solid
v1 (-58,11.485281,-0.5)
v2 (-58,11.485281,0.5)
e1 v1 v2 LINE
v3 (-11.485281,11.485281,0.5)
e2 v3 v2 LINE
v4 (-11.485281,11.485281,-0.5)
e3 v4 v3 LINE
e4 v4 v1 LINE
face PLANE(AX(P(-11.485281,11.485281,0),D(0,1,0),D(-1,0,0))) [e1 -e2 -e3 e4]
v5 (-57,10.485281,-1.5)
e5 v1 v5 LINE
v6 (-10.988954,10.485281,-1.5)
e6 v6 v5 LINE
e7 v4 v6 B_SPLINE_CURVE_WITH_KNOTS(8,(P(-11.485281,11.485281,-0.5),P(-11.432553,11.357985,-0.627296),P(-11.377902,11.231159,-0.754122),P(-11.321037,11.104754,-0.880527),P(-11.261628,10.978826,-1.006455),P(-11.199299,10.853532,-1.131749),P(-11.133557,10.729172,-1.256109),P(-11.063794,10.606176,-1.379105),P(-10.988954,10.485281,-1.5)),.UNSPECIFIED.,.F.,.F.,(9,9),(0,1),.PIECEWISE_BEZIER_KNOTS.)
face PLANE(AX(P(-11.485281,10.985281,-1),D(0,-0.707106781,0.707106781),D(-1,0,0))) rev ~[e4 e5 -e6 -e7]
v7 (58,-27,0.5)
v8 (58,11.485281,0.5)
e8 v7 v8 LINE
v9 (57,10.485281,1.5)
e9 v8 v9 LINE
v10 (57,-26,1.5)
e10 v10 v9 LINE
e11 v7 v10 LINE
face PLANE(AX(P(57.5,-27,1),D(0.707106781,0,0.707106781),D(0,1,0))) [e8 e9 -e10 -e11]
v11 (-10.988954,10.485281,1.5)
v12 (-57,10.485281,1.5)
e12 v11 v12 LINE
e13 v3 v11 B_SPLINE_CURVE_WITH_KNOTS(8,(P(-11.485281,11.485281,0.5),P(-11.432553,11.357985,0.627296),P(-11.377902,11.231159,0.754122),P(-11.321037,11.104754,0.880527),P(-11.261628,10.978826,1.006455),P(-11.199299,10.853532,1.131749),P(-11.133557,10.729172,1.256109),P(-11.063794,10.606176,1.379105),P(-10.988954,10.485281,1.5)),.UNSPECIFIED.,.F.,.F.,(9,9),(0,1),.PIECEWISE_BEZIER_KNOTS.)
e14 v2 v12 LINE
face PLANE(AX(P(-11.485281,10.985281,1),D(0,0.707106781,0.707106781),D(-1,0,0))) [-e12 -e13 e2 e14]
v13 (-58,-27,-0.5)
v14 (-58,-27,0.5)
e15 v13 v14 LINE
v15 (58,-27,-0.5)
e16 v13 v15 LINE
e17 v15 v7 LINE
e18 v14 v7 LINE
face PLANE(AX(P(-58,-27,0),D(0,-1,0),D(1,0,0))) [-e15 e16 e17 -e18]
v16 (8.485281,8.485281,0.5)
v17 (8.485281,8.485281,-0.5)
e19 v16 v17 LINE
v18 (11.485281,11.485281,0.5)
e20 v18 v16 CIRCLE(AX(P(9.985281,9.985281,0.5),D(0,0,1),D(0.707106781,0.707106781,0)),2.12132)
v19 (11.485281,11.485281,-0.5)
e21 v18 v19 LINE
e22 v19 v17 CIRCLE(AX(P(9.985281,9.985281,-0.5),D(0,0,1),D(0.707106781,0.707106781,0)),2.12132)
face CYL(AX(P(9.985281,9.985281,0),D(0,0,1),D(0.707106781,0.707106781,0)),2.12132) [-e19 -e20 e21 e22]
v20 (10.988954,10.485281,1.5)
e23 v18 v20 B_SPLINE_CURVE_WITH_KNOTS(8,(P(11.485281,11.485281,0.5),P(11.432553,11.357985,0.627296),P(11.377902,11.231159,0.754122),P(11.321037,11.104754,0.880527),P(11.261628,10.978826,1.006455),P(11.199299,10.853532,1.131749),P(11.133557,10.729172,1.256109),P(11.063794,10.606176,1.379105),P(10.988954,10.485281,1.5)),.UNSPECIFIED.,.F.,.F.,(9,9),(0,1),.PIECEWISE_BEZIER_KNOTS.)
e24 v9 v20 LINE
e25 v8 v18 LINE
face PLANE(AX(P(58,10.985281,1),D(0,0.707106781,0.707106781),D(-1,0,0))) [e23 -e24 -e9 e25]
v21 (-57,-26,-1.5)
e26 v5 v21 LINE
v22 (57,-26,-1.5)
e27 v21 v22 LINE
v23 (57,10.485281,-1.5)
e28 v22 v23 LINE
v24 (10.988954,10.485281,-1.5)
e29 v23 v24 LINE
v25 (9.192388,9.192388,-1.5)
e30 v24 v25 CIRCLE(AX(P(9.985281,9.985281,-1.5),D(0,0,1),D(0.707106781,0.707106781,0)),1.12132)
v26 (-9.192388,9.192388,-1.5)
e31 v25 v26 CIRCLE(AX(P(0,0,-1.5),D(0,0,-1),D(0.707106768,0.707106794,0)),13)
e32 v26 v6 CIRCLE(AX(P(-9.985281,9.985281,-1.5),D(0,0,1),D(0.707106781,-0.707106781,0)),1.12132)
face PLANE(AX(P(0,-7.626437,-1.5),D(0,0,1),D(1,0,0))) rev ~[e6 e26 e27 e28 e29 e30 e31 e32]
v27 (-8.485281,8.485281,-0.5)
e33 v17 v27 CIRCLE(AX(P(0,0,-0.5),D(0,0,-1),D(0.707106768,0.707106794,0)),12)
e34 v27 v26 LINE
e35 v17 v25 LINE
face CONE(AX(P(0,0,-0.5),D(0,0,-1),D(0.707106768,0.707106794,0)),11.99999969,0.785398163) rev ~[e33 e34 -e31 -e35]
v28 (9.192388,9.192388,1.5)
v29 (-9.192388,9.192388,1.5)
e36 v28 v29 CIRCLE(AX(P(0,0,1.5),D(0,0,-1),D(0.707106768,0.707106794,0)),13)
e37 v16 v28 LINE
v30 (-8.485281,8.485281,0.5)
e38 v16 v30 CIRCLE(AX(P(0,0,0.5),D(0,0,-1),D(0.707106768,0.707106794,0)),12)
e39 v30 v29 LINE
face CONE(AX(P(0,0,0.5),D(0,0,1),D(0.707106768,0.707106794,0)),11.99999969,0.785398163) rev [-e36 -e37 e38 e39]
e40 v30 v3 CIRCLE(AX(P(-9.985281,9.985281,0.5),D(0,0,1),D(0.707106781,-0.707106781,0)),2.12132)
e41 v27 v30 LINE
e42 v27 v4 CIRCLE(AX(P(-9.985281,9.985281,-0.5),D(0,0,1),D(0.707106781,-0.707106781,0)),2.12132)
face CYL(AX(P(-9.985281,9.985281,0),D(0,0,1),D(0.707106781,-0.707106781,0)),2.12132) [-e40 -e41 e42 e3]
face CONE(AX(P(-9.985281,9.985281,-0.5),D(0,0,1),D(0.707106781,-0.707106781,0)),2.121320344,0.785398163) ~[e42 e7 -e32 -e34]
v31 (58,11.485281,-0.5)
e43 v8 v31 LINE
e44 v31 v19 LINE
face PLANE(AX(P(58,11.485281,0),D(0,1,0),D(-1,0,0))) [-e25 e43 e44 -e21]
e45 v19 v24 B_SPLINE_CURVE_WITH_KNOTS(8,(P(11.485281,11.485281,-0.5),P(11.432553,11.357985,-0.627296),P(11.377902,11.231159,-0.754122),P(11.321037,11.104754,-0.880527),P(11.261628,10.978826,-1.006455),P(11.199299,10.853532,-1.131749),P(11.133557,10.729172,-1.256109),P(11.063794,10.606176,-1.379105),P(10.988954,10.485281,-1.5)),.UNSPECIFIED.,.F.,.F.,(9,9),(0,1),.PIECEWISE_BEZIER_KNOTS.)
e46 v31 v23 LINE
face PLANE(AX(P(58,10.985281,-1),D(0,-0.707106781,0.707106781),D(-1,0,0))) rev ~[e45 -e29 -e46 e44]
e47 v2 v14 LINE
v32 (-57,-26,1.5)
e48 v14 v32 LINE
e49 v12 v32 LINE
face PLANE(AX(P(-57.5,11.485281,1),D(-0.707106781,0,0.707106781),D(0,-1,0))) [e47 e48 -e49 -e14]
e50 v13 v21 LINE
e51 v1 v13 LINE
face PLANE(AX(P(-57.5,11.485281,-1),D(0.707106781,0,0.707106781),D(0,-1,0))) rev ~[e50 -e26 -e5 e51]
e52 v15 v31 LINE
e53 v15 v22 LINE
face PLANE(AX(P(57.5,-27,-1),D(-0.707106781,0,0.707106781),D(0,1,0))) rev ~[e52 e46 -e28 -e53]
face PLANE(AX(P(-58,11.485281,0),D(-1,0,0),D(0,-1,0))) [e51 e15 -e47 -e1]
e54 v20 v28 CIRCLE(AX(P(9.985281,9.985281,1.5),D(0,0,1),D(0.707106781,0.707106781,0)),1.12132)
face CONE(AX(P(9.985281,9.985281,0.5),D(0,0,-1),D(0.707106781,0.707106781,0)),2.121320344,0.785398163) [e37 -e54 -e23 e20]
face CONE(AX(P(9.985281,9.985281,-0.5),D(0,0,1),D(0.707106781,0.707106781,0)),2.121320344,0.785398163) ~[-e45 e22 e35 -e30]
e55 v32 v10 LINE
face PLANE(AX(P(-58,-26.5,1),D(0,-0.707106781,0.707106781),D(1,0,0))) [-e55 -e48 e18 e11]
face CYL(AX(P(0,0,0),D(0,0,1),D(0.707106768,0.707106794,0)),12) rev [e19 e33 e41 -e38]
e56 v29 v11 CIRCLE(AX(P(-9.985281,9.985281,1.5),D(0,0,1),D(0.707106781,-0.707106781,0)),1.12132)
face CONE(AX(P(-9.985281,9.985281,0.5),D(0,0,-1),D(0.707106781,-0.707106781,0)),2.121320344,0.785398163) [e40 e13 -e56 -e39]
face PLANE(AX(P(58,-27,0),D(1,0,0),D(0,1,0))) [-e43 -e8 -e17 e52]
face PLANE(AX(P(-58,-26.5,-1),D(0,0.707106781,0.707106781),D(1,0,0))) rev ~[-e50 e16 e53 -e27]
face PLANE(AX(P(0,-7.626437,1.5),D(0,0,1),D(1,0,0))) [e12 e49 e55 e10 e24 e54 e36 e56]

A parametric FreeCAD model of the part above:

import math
import FreeCAD as App
import Part
import Sketcher

V = App.Vector


def edges_at(feature, points):
    """Names of the edges that pass closest to the given points."""
    edges = feature.Shape.Edges
    near = lambda p: min(range(len(edges)), key=lambda i: edges[i].distToShape(Part.Vertex(*p))[0])
    return sorted({f"Edge{near(p) + 1}" for p in points})

doc = App.newDocument("Part")
params = doc.addObject("Spreadsheet::Sheet", "Params")
for row, (alias, value) in enumerate([
    ("sketch1_radius", "12 mm"),
    ("sketch1_width", "116 mm"),
    ("pad1_length", "3 mm"),
    ("chamfer_size", "1 mm"),
], start=1):
    params.set(f"A{row}", alias)
    params.set(f"B{row}", "=" + value)
    params.setAlias(f"B{row}", alias)

body = doc.addObject("PartDesign::Body", "Body")

# Sketch on XY plane
sketch1 = body.newObject("Sketcher::SketchObject", "Sketch")
sketch1.AttachmentSupport = (doc.getObject("XY_Plane"), [""])
sketch1.MapMode = "FlatFace"
sketch1.addGeometry([
    Part.ArcOfCircle(Part.Circle(V(0, 0, 0), V(0, 0, 1), 12), math.radians(135), math.radians(405)),  # 0
    Part.ArcOfCircle(Part.Circle(V(-10, 10, 0), V(0, 0, 1), 2.1), math.radians(-45), math.radians(135)),  # 1
    Part.LineSegment(V(-11.5, 11.5, 0), V(-58, 11.5, 0)),  # 2
    Part.LineSegment(V(-58, 11.5, 0), V(-58, -27, 0)),  # 3
    Part.LineSegment(V(-58, -27, 0), V(58, -27, 0)),  # 4
    Part.LineSegment(V(58, -27, 0), V(58, 11.5, 0)),  # 5
    Part.LineSegment(V(58, 11.5, 0), V(11.5, 11.5, 0)),  # 6
    Part.ArcOfCircle(Part.Circle(V(10, 10, 0), V(0, 0, 1), 2.1), math.radians(45), math.radians(225)),  # 7
], False)
sketch1.addConstraint([
    Sketcher.Constraint("Tangent", 0, 1, 1, 1),
    Sketcher.Constraint("Coincident", 1, 2, 2, 1),
    Sketcher.Constraint("Coincident", 2, 2, 3, 1),
    Sketcher.Constraint("Coincident", 3, 2, 4, 1),
    Sketcher.Constraint("Coincident", 4, 2, 5, 1),
    Sketcher.Constraint("Coincident", 5, 2, 6, 1),
    Sketcher.Constraint("Coincident", 6, 2, 7, 1),
    Sketcher.Constraint("Tangent", 7, 2, 0, 2),
    Sketcher.Constraint("Horizontal", 2),
    Sketcher.Constraint("Vertical", 3),
    Sketcher.Constraint("Horizontal", 4),
    Sketcher.Constraint("Vertical", 5),
    Sketcher.Constraint("Horizontal", 6),
    Sketcher.Constraint("Coincident", 0, 3, -1, 1),
    Sketcher.Constraint("Equal", 1, 7),
    Sketcher.Constraint("Symmetric", 2, 2, 5, 2, -2),
    Sketcher.Constraint("Horizontal", 1, 3, 7, 3),
    Sketcher.Constraint("Radius", 0, 12.0),
    Sketcher.Constraint("DistanceX", 4, 1, 4, 2, 116.0),
    Sketcher.Constraint("DistanceY", 3, 2, -1, 1, 27.0),
    Sketcher.Constraint("DistanceX", 1, 2, 0, 1, 3.0),
    Sketcher.Constraint("DistanceY", 0, 1, 1, 2, 3.0),
    Sketcher.Constraint("DistanceX", 1, 3, 0, 1, 1.5),
])
sketch1.setExpression("Constraints[17]", "Params.sketch1_radius")
sketch1.setExpression("Constraints[18]", "Params.sketch1_width")
pad1 = body.newObject("PartDesign::Pad", "Pad")
pad1.Profile = sketch1
pad1.setExpression("Length", "Params.pad1_length")
pad1.Midplane = True
doc.recompute()

chamfer = body.newObject("PartDesign::Chamfer", "Chamfer")
chamfer.Base = (pad1, edges_at(pad1, [
    (0, -12, 1.5),
    (8.485, 11.485, 1.5),
    (34.743, 11.485, 1.5),
    (58, -7.757, 1.5),
    (0, -27, 1.5),
    (-58, -7.757, 1.5),
    (-34.743, 11.485, 1.5),
    (-8.485, 11.485, 1.5),
    (-34.743, 11.485, -1.5),
    (-58, -7.757, -1.5),
    (0, -27, -1.5),
    (0, -12, -1.5),
    (-8.485, 11.485, -1.5),
    (58, -7.757, -1.5),
    (34.743, 11.485, -1.5),
    (8.485, 11.485, -1.5),
]))
chamfer.setExpression("Size", "Params.chamfer_size")

doc.recompute()
